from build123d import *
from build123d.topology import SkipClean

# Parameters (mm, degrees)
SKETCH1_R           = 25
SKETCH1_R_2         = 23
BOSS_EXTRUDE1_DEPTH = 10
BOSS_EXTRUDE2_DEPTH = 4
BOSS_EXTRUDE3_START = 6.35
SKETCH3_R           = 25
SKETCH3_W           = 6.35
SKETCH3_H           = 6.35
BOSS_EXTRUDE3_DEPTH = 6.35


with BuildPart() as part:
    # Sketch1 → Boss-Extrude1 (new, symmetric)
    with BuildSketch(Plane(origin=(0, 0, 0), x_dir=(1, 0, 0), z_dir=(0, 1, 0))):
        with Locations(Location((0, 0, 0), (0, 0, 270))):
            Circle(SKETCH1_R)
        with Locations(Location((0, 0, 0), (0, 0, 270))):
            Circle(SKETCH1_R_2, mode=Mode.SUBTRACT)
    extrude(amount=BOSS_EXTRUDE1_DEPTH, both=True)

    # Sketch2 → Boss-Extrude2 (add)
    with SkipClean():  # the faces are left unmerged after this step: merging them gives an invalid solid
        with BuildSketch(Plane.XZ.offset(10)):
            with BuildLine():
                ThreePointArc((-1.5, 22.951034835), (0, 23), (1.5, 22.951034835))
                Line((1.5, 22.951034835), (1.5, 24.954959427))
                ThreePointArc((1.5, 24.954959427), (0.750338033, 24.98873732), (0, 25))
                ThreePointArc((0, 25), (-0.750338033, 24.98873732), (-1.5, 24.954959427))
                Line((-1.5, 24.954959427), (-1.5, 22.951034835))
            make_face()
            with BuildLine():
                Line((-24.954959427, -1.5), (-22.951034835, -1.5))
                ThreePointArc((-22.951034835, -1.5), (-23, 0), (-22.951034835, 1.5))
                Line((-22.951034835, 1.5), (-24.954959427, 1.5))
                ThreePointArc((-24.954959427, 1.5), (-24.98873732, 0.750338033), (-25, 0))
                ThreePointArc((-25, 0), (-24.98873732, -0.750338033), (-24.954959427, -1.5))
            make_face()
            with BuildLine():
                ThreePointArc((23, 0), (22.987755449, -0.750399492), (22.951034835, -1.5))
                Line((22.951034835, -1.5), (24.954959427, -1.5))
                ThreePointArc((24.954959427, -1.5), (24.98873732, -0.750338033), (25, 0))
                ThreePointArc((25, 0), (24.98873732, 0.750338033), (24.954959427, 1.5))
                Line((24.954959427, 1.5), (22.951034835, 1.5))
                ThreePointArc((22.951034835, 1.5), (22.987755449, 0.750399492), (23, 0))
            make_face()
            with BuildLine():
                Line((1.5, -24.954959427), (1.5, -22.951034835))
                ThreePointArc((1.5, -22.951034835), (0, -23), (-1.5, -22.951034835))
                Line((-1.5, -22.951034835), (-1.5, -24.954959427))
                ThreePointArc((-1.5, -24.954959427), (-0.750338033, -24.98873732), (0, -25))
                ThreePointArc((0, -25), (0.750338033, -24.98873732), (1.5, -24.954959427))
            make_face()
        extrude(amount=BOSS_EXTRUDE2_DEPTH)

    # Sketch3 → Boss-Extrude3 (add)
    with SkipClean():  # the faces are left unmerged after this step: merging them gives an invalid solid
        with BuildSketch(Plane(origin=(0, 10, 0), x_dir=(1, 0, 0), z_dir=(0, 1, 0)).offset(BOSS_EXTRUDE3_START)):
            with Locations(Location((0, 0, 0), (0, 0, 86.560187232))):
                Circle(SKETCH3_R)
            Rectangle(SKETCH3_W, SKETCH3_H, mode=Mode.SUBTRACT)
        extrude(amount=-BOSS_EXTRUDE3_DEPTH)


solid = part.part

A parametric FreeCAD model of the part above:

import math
import FreeCAD as App
import Part
import Sketcher
from FreeCAD import Vector


def add_polygon(sketch, points):
    """Adds a closed chain of lines whose ends are joined by coincident constraints."""
    first, n = sketch.GeometryCount, len(points)
    for a, b in zip(points, points[1:] + points[:1]):
        sketch.addGeometry(Part.LineSegment(App.Vector(*a, 0), App.Vector(*b, 0)), False)
    for i in range(n):
        sketch.addConstraint(Sketcher.Constraint("Coincident", first + i, 2, first + (i + 1) % n, 1))

doc = App.newDocument("Part")
body = doc.addObject("PartDesign::Body", "Body")

# Sketch on XZ plane
sketch1 = body.newObject("Sketcher::SketchObject", "Sketch")
sketch1.AttachmentSupport = (doc.getObject("XZ_Plane"), [""])
sketch1.MapMode = "FlatFace"
sketch1.addGeometry(Part.Circle(Vector(0, 0, 0), Vector(0, 0, 1), 25), False)
sketch1.addGeometry(Part.Circle(Vector(0, 0, 0), Vector(0, 0, 1), 23), False)
sketch1.addConstraint(Sketcher.Constraint("Coincident", 0, 3, -1, 1))
sketch1.addConstraint(Sketcher.Constraint("Coincident", 1, 3, -1, 1))
sketch1.addConstraint(Sketcher.Constraint("Diameter", 0, 50.0))
sketch1.addConstraint(Sketcher.Constraint("Diameter", 1, 46.0))
pad1 = body.newObject("PartDesign::Pad", "Pad")
pad1.Profile = sketch1
pad1.Length = 20
pad1.Midplane = True

# Sketch on XZ plane
sketch2 = body.newObject("Sketcher::SketchObject", "Sketch001")
sketch2.AttachmentSupport = (doc.getObject("XZ_Plane"), [""])
sketch2.MapMode = "FlatFace"
sketch2.AttachmentOffset = App.Placement(Vector(0, 0, 10), App.Rotation())
sketch2.addGeometry(Part.ArcOfCircle(Part.Circle(Vector(0, 0, 0), Vector(0, 0, 1), 23), math.radians(86.260665), math.radians(93.739335)), False)
sketch2.addGeometry(Part.LineSegment(Vector(1.5, 22.951035, 0), Vector(1.5, 24.954959, 0)), False)
sketch2.addGeometry(Part.ArcOfCircle(Part.Circle(Vector(0, 0, 0), Vector(0, 0, 1), 25), math.radians(86.560187), math.radians(90)), False)
sketch2.addGeometry(Part.ArcOfCircle(Part.Circle(Vector(0, 0, 0), Vector(0, 0, 1), 25), math.radians(90), math.radians(93.439813)), False)
sketch2.addGeometry(Part.LineSegment(Vector(-1.5, 24.954959, 0), Vector(-1.5, 22.951035, 0)), False)
sketch2.addGeometry(Part.LineSegment(Vector(-24.954959, -1.5, 0), Vector(-22.951035, -1.5, 0)), False)
sketch2.addGeometry(Part.ArcOfCircle(Part.Circle(Vector(0, 0, 0), Vector(0, 0, 1), 23), math.radians(176.260665), math.radians(183.739335)), False)
sketch2.addGeometry(Part.LineSegment(Vector(-22.951035, 1.5, 0), Vector(-24.954959, 1.5, 0)), False)
sketch2.addGeometry(Part.ArcOfCircle(Part.Circle(Vector(0, 0, 0), Vector(0, 0, 1), 25), math.radians(176.560187), math.radians(180)), False)
sketch2.addGeometry(Part.ArcOfCircle(Part.Circle(Vector(0, 0, 0), Vector(0, 0, 1), 25), math.radians(180), math.radians(183.439813)), False)
sketch2.addGeometry(Part.ArcOfCircle(Part.Circle(Vector(-0.000001, 0, 0), Vector(0, 0, 1), 23.000001), math.radians(-3.739335), math.radians(0)), False)
sketch2.addGeometry(Part.LineSegment(Vector(22.951035, -1.5, 0), Vector(24.954959, -1.5, 0)), False)
sketch2.addGeometry(Part.ArcOfCircle(Part.Circle(Vector(0, 0, 0), Vector(0, 0, 1), 25), math.radians(-3.439813), math.radians(0)), False)
sketch2.addGeometry(Part.ArcOfCircle(Part.Circle(Vector(0, 0, 0), Vector(0, 0, 1), 25), math.radians(0), math.radians(3.439813)), False)
sketch2.addGeometry(Part.LineSegment(Vector(24.954959, 1.5, 0), Vector(22.951035, 1.5, 0)), False)
sketch2.addGeometry(Part.ArcOfCircle(Part.Circle(Vector(-0.000001, 0, 0), Vector(0, 0, 1), 23.000001), math.radians(0), math.radians(3.739335)), False)
sketch2.addGeometry(Part.LineSegment(Vector(1.5, -24.954959, 0), Vector(1.5, -22.951035, 0)), False)
sketch2.addGeometry(Part.ArcOfCircle(Part.Circle(Vector(0, 0, 0), Vector(0, 0, 1), 23), math.radians(-93.739335), math.radians(-86.260665)), False)
sketch2.addGeometry(Part.LineSegment(Vector(-1.5, -22.951035, 0), Vector(-1.5, -24.954959, 0)), False)
sketch2.addGeometry(Part.ArcOfCircle(Part.Circle(Vector(0, 0, 0), Vector(0, 0, 1), 25), math.radians(-93.439813), math.radians(-90)), False)
sketch2.addGeometry(Part.ArcOfCircle(Part.Circle(Vector(0, 0, 0), Vector(0, 0, 1), 25), math.radians(-90), math.radians(-86.560187)), False)
sketch2.addConstraint(Sketcher.Constraint("Coincident", 0, 1, 1, 1))
sketch2.addConstraint(Sketcher.Constraint("Coincident", 1, 2, 2, 1))
sketch2.addConstraint(Sketcher.Constraint("Tangent", 2, 2, 3, 1))
sketch2.addConstraint(Sketcher.Constraint("Coincident", 3, 2, 4, 1))
sketch2.addConstraint(Sketcher.Constraint("Coincident", 4, 2, 0, 2))
sketch2.addConstraint(Sketcher.Constraint("Coincident", 5, 2, 6, 2))
sketch2.addConstraint(Sketcher.Constraint("Coincident", 6, 1, 7, 1))
sketch2.addConstraint(Sketcher.Constraint("Coincident", 7, 2, 8, 1))
sketch2.addConstraint(Sketcher.Constraint("Tangent", 8, 2, 9, 1))
sketch2.addConstraint(Sketcher.Constraint("Coincident", 9, 2, 5, 1))
sketch2.addConstraint(Sketcher.Constraint("Coincident", 10, 1, 11, 1))
sketch2.addConstraint(Sketcher.Constraint("Coincident", 11, 2, 12, 1))
sketch2.addConstraint(Sketcher.Constraint("Tangent", 12, 2, 13, 1))
sketch2.addConstraint(Sketcher.Constraint("Coincident", 13, 2, 14, 1))
sketch2.addConstraint(Sketcher.Constraint("Coincident", 14, 2, 15, 2))
sketch2.addConstraint(Sketcher.Constraint("Tangent", 15, 1, 10, 2))
sketch2.addConstraint(Sketcher.Constraint("Coincident", 16, 2, 17, 2))
sketch2.addConstraint(Sketcher.Constraint("Coincident", 17, 1, 18, 1))
sketch2.addConstraint(Sketcher.Constraint("Coincident", 18, 2, 19, 1))
sketch2.addConstraint(Sketcher.Constraint("Tangent", 19, 2, 20, 1))
sketch2.addConstraint(Sketcher.Constraint("Coincident", 20, 2, 16, 1))
sketch2.addConstraint(Sketcher.Constraint("Vertical", 1))
sketch2.addConstraint(Sketcher.Constraint("Vertical", 4))
sketch2.addConstraint(Sketcher.Constraint("Horizontal", 5))
sketch2.addConstraint(Sketcher.Constraint("Horizontal", 7))
sketch2.addConstraint(Sketcher.Constraint("Horizontal", 11))
sketch2.addConstraint(Sketcher.Constraint("Horizontal", 14))
sketch2.addConstraint(Sketcher.Constraint("Vertical", 16))
sketch2.addConstraint(Sketcher.Constraint("Vertical", 18))
sketch2.addConstraint(Sketcher.Constraint("Coincident", 0, 3, -1, 1))
sketch2.addConstraint(Sketcher.Constraint("Coincident", 2, 3, -1, 1))
sketch2.addConstraint(Sketcher.Constraint("Coincident", 6, 3, -1, 1))
sketch2.addConstraint(Sketcher.Constraint("Coincident", 8, 3, -1, 1))
sketch2.addConstraint(Sketcher.Constraint("Coincident", 10, 3, -1, 1))
sketch2.addConstraint(Sketcher.Constraint("Coincident", 12, 3, -1, 1))
sketch2.addConstraint(Sketcher.Constraint("Coincident", 17, 3, -1, 1))
sketch2.addConstraint(Sketcher.Constraint("Coincident", 19, 3, -1, 1))
sketch2.addConstraint(Sketcher.Constraint("Equal", 2, 3))
sketch2.addConstraint(Sketcher.Constraint("Equal", 0, 6))
sketch2.addConstraint(Sketcher.Constraint("Equal", 3, 8))
sketch2.addConstraint(Sketcher.Constraint("Equal", 8, 9))
sketch2.addConstraint(Sketcher.Constraint("Equal", 6, 10))
sketch2.addConstraint(Sketcher.Constraint("Equal", 9, 12))
sketch2.addConstraint(Sketcher.Constraint("Equal", 12, 13))
sketch2.addConstraint(Sketcher.Constraint("Equal", 10, 15))
sketch2.addConstraint(Sketcher.Constraint("Equal", 15, 17))
sketch2.addConstraint(Sketcher.Constraint("Equal", 13, 19))
sketch2.addConstraint(Sketcher.Constraint("Equal", 19, 20))
sketch2.addConstraint(Sketcher.Constraint("PointOnObject", 2, 2, -2))
sketch2.addConstraint(Sketcher.Constraint("PointOnObject", 8, 2, -1))
sketch2.addConstraint(Sketcher.Constraint("PointOnObject", 12, 2, -1))
sketch2.addConstraint(Sketcher.Constraint("PointOnObject", 15, 1, -1))
sketch2.addConstraint(Sketcher.Constraint("PointOnObject", 19, 2, -2))
sketch2.addConstraint(Sketcher.Constraint("Horizontal", 1, 2, 3, 2))
sketch2.addConstraint(Sketcher.Constraint("Horizontal", 9, 2, 10, 1))
sketch2.addConstraint(Sketcher.Constraint("Horizontal", 7, 2, 13, 2))
sketch2.addConstraint(Sketcher.Constraint("Horizontal", 16, 2, 17, 1))
sketch2.addConstraint(Sketcher.Constraint("Vertical", 5, 2, 6, 1))
sketch2.addConstraint(Sketcher.Constraint("Vertical", 1, 2, 16, 2))
sketch2.addConstraint(Sketcher.Constraint("Radius", 0, 23.0))
sketch2.addConstraint(Sketcher.Constraint("Radius", 2, 25.0))
sketch2.addConstraint(Sketcher.Constraint("DistanceX", 3, 2, 1, 2, 3.0))
sketch2.addConstraint(Sketcher.Constraint("DistanceY", 5, 2, 6, 1, 3.0))
pad2 = body.newObject("PartDesign::Pad", "Pad001")
pad2.Profile = sketch2
pad2.Length = 4

# Sketch on XZ plane
sketch3 = body.newObject("Sketcher::SketchObject", "Sketch002")
sketch3.AttachmentSupport = (doc.getObject("XZ_Plane"), [""])
sketch3.MapMode = "FlatFace"
sketch3.AttachmentOffset = App.Placement(Vector(0, 0, -16.35), App.Rotation())
sketch3.addGeometry(Part.Circle(Vector(0, 0, 0), Vector(0, 0, 1), 25), False)  # 0
add_polygon(sketch3, [(3.175, 3.175), (-3.175, 3.175), (-3.175, -3.175), (3.175, -3.175)])  # lines 1-4
sketch3.addConstraint(Sketcher.Constraint("Horizontal", 1))
sketch3.addConstraint(Sketcher.Constraint("Vertical", 2))
sketch3.addConstraint(Sketcher.Constraint("Horizontal", 3))
sketch3.addConstraint(Sketcher.Constraint("Vertical", 4))
sketch3.addConstraint(Sketcher.Constraint("Coincident", 0, 3, -1, 1))
sketch3.addConstraint(Sketcher.Constraint("Symmetric", 1, 2, 3, 2, -1, 1))
sketch3.addConstraint(Sketcher.Constraint("Equal", 3, 2))
sketch3.addConstraint(Sketcher.Constraint("Diameter", 0, 50.0))
sketch3.addConstraint(Sketcher.Constraint("DistanceX", 1, 2, 1, 1, 6.35))
pad3 = body.newObject("PartDesign::Pad", "Pad002")
pad3.Profile = sketch3
pad3.Length = 6.35

doc.recompute()
